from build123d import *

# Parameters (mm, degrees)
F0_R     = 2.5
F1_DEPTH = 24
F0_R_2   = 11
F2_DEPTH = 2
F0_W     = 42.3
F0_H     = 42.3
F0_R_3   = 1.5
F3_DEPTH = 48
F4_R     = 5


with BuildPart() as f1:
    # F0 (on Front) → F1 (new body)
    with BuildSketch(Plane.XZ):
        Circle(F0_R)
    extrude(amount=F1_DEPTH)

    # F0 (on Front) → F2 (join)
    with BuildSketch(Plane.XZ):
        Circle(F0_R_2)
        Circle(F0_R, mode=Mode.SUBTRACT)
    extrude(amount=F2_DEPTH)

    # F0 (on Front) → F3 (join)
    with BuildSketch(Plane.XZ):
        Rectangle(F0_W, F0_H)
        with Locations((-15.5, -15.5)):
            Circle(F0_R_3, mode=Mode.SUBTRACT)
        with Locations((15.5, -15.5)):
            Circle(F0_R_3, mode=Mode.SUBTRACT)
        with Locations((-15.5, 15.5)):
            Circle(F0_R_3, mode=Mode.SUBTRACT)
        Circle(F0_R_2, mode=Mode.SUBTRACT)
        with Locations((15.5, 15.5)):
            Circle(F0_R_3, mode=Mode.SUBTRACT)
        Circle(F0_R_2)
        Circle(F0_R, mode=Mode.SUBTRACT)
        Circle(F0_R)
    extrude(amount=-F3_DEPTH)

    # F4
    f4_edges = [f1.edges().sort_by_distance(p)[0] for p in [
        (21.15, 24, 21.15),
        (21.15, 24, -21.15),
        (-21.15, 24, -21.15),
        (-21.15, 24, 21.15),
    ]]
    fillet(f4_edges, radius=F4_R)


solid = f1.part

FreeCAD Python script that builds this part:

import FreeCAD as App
import Part
import Sketcher


def edges_at(feature, points):
    """Names of the edges that pass closest to the given points."""
    edges = feature.Shape.Edges
    near = lambda p: min(range(len(edges)), key=lambda i: edges[i].distToShape(Part.Vertex(*p))[0])
    return sorted({f"Edge{near(p) + 1}" for p in points})

doc = App.newDocument("Part")
body = doc.addObject("PartDesign::Body", "Body")

sketch1 = doc.addObject("Sketcher::SketchObject", "Sketch")
body.addObject(sketch1)
sketch1.AttachmentSupport = (doc.XZ_Plane, [""])
sketch1.MapMode = "FlatFace"
sketch1.addGeometry(Part.Circle(App.Vector(0, 0, 0), App.Vector(0, 0, 1), 2.5), False)
sketch1.addConstraint(Sketcher.Constraint("Coincident", 0, 3, -1, 1))
sketch1.addConstraint(Sketcher.Constraint("Diameter", 0, 5.0))
pad1 = doc.addObject("PartDesign::Pad", "Pad")
body.addObject(pad1)
pad1.Profile = sketch1
pad1.Length = 24

sketch2 = doc.addObject("Sketcher::SketchObject", "Sketch001")
body.addObject(sketch2)
sketch2.AttachmentSupport = (doc.XZ_Plane, [""])
sketch2.MapMode = "FlatFace"
sketch2.addGeometry(Part.Circle(App.Vector(0, 0, 0), App.Vector(0, 0, 1), 11), False)
sketch2.addGeometry(Part.Circle(App.Vector(0, 0, 0), App.Vector(0, 0, 1), 2.5), False)
sketch2.addConstraint(Sketcher.Constraint("Coincident", 0, 3, -1, 1))
sketch2.addConstraint(Sketcher.Constraint("Coincident", 1, 3, -1, 1))
sketch2.addConstraint(Sketcher.Constraint("Diameter", 0, 22.0))
sketch2.addConstraint(Sketcher.Constraint("Diameter", 1, 5.0))
pad2 = doc.addObject("PartDesign::Pad", "Pad001")
body.addObject(pad2)
pad2.Profile = sketch2
pad2.Length = 2

sketch3 = doc.addObject("Sketcher::SketchObject", "Sketch002")
body.addObject(sketch3)
sketch3.AttachmentSupport = (doc.XZ_Plane, [""])
sketch3.MapMode = "FlatFace"
sketch3.addGeometry(Part.LineSegment(App.Vector(-21.1, 21.1, 0), App.Vector(-21.1, -21.1, 0)), False)
sketch3.addGeometry(Part.LineSegment(App.Vector(-21.1, -21.1, 0), App.Vector(21.1, -21.1, 0)), False)
sketch3.addGeometry(Part.LineSegment(App.Vector(21.1, -21.1, 0), App.Vector(21.1, 21.1, 0)), False)
sketch3.addGeometry(Part.LineSegment(App.Vector(21.1, 21.1, 0), App.Vector(-21.1, 21.1, 0)), False)
sketch3.addGeometry(Part.Circle(App.Vector(-15.5, -15.5, 0), App.Vector(0, 0, 1), 1.5), False)
sketch3.addGeometry(Part.Circle(App.Vector(15.5, -15.5, 0), App.Vector(0, 0, 1), 1.5), False)
sketch3.addGeometry(Part.Circle(App.Vector(-15.5, 15.5, 0), App.Vector(0, 0, 1), 1.5), False)
sketch3.addGeometry(Part.Circle(App.Vector(15.5, 15.5, 0), App.Vector(0, 0, 1), 1.5), False)
sketch3.addConstraint(Sketcher.Constraint("Coincident", 0, 2, 1, 1))
sketch3.addConstraint(Sketcher.Constraint("Coincident", 1, 2, 2, 1))
sketch3.addConstraint(Sketcher.Constraint("Coincident", 2, 2, 3, 1))
sketch3.addConstraint(Sketcher.Constraint("Coincident", 3, 2, 0, 1))
sketch3.addConstraint(Sketcher.Constraint("Vertical", 0))
sketch3.addConstraint(Sketcher.Constraint("Horizontal", 1))
sketch3.addConstraint(Sketcher.Constraint("Vertical", 2))
sketch3.addConstraint(Sketcher.Constraint("Horizontal", 3))
sketch3.addConstraint(Sketcher.Constraint("Equal", 4, 5))
sketch3.addConstraint(Sketcher.Constraint("Equal", 5, 6))
sketch3.addConstraint(Sketcher.Constraint("Equal", 6, 7))
sketch3.addConstraint(Sketcher.Constraint("Symmetric", 5, 3, 6, 3, -1, 1))
sketch3.addConstraint(Sketcher.Constraint("Symmetric", 4, 3, 7, 3, -1, 1))
sketch3.addConstraint(Sketcher.Constraint("Symmetric", 0, 2, 2, 2, -1, 1))
sketch3.addConstraint(Sketcher.Constraint("Symmetric", 4, 3, 5, 3, -2))
sketch3.addConstraint(Sketcher.Constraint("Equal", 3, 0))
sketch3.addConstraint(Sketcher.Constraint("Diameter", 4, 3.0))
sketch3.addConstraint(Sketcher.Constraint("DistanceX", 1, 1, 1, 2, 42.3))
sketch3.addConstraint(Sketcher.Constraint("DistanceX", 4, 3, 5, 3, 31.0))
sketch3.addConstraint(Sketcher.Constraint("DistanceY", 4, 3, 6, 3, 31.0))
pad3 = doc.addObject("PartDesign::Pad", "Pad002")
body.addObject(pad3)
pad3.Profile = sketch3
pad3.Length = 48
pad3.Reversed = True
doc.recompute()

fillet = doc.addObject("PartDesign::Fillet", "Fillet")
body.addObject(fillet)
fillet.Base = (pad3, edges_at(pad3, [
    (21.15, 24, 21.15),
    (21.15, 24, -21.15),
    (-21.15, 24, -21.15),
    (-21.15, 24, 21.15),
]))
fillet.Radius = 5

doc.recompute()
